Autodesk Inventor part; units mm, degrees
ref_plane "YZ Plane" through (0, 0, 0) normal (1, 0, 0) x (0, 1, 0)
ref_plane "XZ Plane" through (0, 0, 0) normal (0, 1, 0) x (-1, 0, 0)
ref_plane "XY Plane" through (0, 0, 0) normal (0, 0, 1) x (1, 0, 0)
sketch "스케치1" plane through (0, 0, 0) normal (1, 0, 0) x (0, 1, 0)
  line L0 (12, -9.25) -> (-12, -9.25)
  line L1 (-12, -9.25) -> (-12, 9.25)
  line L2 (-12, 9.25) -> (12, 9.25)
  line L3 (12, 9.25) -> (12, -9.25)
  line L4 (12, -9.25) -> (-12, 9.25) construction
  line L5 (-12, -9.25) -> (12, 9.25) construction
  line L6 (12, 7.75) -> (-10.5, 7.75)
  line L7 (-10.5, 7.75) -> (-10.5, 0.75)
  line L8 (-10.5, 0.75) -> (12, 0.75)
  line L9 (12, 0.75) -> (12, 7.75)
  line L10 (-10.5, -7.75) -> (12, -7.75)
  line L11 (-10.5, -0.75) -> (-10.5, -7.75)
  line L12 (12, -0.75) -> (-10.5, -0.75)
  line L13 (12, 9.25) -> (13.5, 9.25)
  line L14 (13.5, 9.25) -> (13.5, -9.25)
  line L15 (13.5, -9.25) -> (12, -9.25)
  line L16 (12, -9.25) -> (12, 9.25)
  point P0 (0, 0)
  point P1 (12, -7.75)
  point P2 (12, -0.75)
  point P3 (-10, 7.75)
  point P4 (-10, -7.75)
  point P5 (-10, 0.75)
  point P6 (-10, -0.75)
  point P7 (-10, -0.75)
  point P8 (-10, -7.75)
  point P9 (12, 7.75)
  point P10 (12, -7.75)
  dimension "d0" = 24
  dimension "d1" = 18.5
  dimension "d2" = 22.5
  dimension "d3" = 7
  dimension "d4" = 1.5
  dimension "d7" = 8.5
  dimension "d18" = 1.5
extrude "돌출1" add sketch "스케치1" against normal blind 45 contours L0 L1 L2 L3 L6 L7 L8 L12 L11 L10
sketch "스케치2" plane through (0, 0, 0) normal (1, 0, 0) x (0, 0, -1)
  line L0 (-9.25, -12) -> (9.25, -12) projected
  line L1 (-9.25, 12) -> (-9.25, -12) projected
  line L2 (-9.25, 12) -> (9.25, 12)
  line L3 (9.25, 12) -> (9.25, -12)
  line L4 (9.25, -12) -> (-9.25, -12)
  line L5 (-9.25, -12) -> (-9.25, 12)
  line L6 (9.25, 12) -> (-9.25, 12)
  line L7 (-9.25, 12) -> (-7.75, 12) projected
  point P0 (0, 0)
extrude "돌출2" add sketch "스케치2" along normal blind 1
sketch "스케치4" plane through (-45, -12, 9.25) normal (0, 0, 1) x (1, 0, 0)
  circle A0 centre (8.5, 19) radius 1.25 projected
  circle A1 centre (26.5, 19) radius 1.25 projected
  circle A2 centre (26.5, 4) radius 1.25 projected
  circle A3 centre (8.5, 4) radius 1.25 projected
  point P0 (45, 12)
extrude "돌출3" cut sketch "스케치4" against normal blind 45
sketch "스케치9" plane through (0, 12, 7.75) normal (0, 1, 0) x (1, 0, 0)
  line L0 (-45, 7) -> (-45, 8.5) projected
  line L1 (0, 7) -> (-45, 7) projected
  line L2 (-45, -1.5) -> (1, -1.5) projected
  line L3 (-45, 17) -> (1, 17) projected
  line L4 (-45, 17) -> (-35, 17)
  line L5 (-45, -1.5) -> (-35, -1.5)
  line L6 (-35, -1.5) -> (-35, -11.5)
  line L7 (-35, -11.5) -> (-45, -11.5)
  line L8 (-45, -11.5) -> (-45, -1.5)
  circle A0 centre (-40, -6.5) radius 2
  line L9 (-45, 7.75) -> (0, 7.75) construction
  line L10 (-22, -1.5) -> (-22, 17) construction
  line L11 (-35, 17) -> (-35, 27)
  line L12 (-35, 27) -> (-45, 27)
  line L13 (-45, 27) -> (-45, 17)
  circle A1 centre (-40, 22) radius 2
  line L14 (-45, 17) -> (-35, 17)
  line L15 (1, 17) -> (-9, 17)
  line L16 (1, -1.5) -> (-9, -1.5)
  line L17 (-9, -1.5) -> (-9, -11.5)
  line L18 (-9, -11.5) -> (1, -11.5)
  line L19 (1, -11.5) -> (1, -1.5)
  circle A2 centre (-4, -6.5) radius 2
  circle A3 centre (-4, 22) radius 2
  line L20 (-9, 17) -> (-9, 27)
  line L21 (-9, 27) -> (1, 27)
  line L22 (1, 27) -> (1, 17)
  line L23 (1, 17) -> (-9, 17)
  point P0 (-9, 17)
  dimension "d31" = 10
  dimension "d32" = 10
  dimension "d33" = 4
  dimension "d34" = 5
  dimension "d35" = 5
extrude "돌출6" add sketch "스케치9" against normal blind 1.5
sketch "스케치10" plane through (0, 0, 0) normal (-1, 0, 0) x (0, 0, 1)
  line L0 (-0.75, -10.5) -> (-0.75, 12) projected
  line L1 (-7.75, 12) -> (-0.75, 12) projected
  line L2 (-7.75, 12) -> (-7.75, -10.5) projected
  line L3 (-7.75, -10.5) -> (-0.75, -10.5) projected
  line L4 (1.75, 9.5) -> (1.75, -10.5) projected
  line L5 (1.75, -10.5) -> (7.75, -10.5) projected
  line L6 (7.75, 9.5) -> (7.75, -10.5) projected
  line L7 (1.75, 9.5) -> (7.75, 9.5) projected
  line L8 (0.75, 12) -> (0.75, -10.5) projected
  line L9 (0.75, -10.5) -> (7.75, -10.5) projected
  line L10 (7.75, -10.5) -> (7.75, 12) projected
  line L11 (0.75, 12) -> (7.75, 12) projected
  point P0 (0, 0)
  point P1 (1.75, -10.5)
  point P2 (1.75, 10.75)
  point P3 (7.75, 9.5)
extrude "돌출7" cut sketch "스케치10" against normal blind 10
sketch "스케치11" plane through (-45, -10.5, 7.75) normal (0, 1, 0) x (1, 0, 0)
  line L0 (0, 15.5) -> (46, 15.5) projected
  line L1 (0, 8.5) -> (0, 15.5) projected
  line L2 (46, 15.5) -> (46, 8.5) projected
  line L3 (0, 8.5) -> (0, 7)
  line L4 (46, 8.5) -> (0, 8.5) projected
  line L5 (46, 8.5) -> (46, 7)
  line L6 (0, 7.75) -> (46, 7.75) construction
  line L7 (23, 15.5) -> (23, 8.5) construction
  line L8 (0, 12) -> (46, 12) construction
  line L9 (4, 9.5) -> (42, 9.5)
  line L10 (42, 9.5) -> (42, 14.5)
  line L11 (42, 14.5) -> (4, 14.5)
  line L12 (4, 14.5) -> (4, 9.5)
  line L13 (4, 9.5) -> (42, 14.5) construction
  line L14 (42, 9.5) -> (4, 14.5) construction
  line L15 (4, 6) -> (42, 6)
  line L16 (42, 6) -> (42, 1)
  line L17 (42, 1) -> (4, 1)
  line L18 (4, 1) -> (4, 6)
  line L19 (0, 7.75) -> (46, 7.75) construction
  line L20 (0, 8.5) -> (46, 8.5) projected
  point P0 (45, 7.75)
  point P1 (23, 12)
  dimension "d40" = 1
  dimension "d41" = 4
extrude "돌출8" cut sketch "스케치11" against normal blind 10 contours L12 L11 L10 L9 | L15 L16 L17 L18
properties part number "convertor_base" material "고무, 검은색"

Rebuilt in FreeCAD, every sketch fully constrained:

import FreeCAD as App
import Part
import Sketcher
Q = App.Units.Quantity

doc = App.newDocument("Part")
body = doc.addObject("PartDesign::Body", "Body")

sketch1 = body.newObject("Sketcher::SketchObject", "Sketch")
sketch1.AttachmentSupport = (doc.getObject("YZ_Plane"), [""])
sketch1.MapMode = "FlatFace"
sketch1.addGeometry([
    Part.LineSegment(App.Vector(-12, -9.2, 0), App.Vector(12, -9.2, 0)),
    Part.LineSegment(App.Vector(12, -9.2, 0), App.Vector(12, -7.8, 0)),
    Part.LineSegment(App.Vector(12, -7.8, 0), App.Vector(-10.5, -7.8, 0)),
    Part.LineSegment(App.Vector(-10.5, -7.8, 0), App.Vector(-10.5, -0.8, 0)),
    Part.LineSegment(App.Vector(-10.5, -0.8, 0), App.Vector(12, -0.8, 0)),
    Part.LineSegment(App.Vector(12, -0.8, 0), App.Vector(12, 0.8, 0)),
    Part.LineSegment(App.Vector(12, 0.8, 0), App.Vector(-10.5, 0.8, 0)),
    Part.LineSegment(App.Vector(-10.5, 0.8, 0), App.Vector(-10.5, 7.8, 0)),
    Part.LineSegment(App.Vector(-10.5, 7.8, 0), App.Vector(12, 7.8, 0)),
    Part.LineSegment(App.Vector(12, 7.8, 0), App.Vector(12, 9.2, 0)),
    Part.LineSegment(App.Vector(12, 9.2, 0), App.Vector(-12, 9.2, 0)),
    Part.LineSegment(App.Vector(-12, 9.2, 0), App.Vector(-12, -9.2, 0)),
], False)
sketch1.addConstraint([
    Sketcher.Constraint("Coincident", 0, 2, 1, 1),
    Sketcher.Constraint("Coincident", 1, 2, 2, 1),
    Sketcher.Constraint("Coincident", 2, 2, 3, 1),
    Sketcher.Constraint("Coincident", 3, 2, 4, 1),
    Sketcher.Constraint("Coincident", 4, 2, 5, 1),
    Sketcher.Constraint("Coincident", 5, 2, 6, 1),
    Sketcher.Constraint("Coincident", 6, 2, 7, 1),
    Sketcher.Constraint("Coincident", 7, 2, 8, 1),
    Sketcher.Constraint("Coincident", 8, 2, 9, 1),
    Sketcher.Constraint("Coincident", 9, 2, 10, 1),
    Sketcher.Constraint("Coincident", 10, 2, 11, 1),
    Sketcher.Constraint("Coincident", 11, 2, 0, 1),
    Sketcher.Constraint("Horizontal", 0),
    Sketcher.Constraint("Vertical", 1),
    Sketcher.Constraint("Horizontal", 2),
    Sketcher.Constraint("Vertical", 3),
    Sketcher.Constraint("Horizontal", 4),
    Sketcher.Constraint("Vertical", 5),
    Sketcher.Constraint("Horizontal", 6),
    Sketcher.Constraint("Vertical", 7),
    Sketcher.Constraint("Horizontal", 8),
    Sketcher.Constraint("Vertical", 9),
    Sketcher.Constraint("Horizontal", 10),
    Sketcher.Constraint("Vertical", 11),
    Sketcher.Constraint("Symmetric", 0, 2, 10, 2, -1, 1),
    Sketcher.Constraint("Symmetric", 3, 2, 6, 2, -1),
    Sketcher.Constraint("Symmetric", 1, 2, 8, 2, -1),
    Sketcher.Constraint("Vertical", 1, 2, 4, 2),
    Sketcher.Constraint("Equal", 1, 5),
    Sketcher.Constraint("DistanceX", 0, 1, 0, 2, Q("24 mm")),
    Sketcher.Constraint("DistanceY", 3, 1, 3, 2, Q("7 mm")),
    Sketcher.Constraint("DistanceX", 2, 2, 2, 1, Q("22.5 mm")),
    Sketcher.Constraint("DistanceY", 1, 1, 1, 2, Q("1.5 mm")),
])
pad1 = body.newObject("PartDesign::Pad", "Pad")
pad1.Profile = sketch1
pad1.Length = 45
pad1.Reversed = True

sketch2 = body.newObject("Sketcher::SketchObject", "Sketch001")
sketch2.AttachmentSupport = (doc.getObject("YZ_Plane"), [""])
sketch2.MapMode = "FlatFace"
sketch2.addGeometry([
    Part.LineSegment(App.Vector(12, 9, 0), App.Vector(-12, 9, 0)),
    Part.LineSegment(App.Vector(-12, 9, 0), App.Vector(-12, -9, 0)),
    Part.LineSegment(App.Vector(-12, -9, 0), App.Vector(12, -9, 0)),
    Part.LineSegment(App.Vector(12, -9, 0), App.Vector(12, 9, 0)),
], False)
sketch2.addConstraint([
    Sketcher.Constraint("Coincident", 0, 2, 1, 1),
    Sketcher.Constraint("Coincident", 1, 2, 2, 1),
    Sketcher.Constraint("Coincident", 2, 2, 3, 1),
    Sketcher.Constraint("Coincident", 3, 2, 0, 1),
    Sketcher.Constraint("Horizontal", 0),
    Sketcher.Constraint("Vertical", 1),
    Sketcher.Constraint("Horizontal", 2),
    Sketcher.Constraint("Vertical", 3),
    Sketcher.Constraint("Symmetric", 0, 2, 2, 2, -1, 1),
    Sketcher.Constraint("DistanceX", 0, 2, 0, 1, Q("24 mm")),
    Sketcher.Constraint("DistanceY", 1, 2, 1, 1, Q("18.5 mm")),
])
pad2 = body.newObject("PartDesign::Pad", "Pad001")
pad2.Profile = sketch2
pad2.Length = 1

sketch3 = body.newObject("Sketcher::SketchObject", "Sketch002")
sketch3.AttachmentSupport = (doc.getObject("XY_Plane"), [""])
sketch3.MapMode = "FlatFace"
sketch3.AttachmentOffset = App.Placement(App.Vector(0, 0, 9.25), App.Rotation())
sketch3.addGeometry([
    Part.Circle(App.Vector(-36.5, 7, 0), App.Vector(0, 0, 1), 1.2),
    Part.Circle(App.Vector(-18.5, 7, 0), App.Vector(0, 0, 1), 1.2),
    Part.Circle(App.Vector(-18.5, -8, 0), App.Vector(0, 0, 1), 1.2),
    Part.Circle(App.Vector(-36.5, -8, 0), App.Vector(0, 0, 1), 1.2),
], False)
sketch3.addConstraint([
    Sketcher.Constraint("Equal", 0, 1),
    Sketcher.Constraint("Equal", 1, 2),
    Sketcher.Constraint("Equal", 2, 3),
    Sketcher.Constraint("Horizontal", 0, 3, 1, 3),
    Sketcher.Constraint("Horizontal", 2, 3, 3, 3),
    Sketcher.Constraint("Vertical", 1, 3, 2, 3),
    Sketcher.Constraint("Vertical", 0, 3, 3, 3),
    Sketcher.Constraint("Diameter", 0, Q("2.5 mm")),
    Sketcher.Constraint("DistanceY", -1, 1, 0, 3, Q("7 mm")),
    Sketcher.Constraint("DistanceY", 2, 3, -1, 1, Q("8 mm")),
    Sketcher.Constraint("DistanceX", 0, 3, 1, 3, Q("18 mm")),
    Sketcher.Constraint("DistanceX", 0, 3, -1, 1, Q("36.5 mm")),
])
pocket1 = body.newObject("PartDesign::Pocket", "Pocket")
pocket1.Profile = sketch3
pocket1.Length = 45

sketch4 = body.newObject("Sketcher::SketchObject", "Sketch003")
sketch4.AttachmentSupport = (doc.getObject("XZ_Plane"), [""])
sketch4.MapMode = "FlatFace"
sketch4.AttachmentOffset = App.Placement(App.Vector(0, 0, -12), App.Rotation())
sketch4.addGeometry([
    Part.LineSegment(App.Vector(1, 9.2, 0), App.Vector(-9, 9.2, 0)),
    Part.LineSegment(App.Vector(-9, 9.2, 0), App.Vector(-9, 19.2, 0)),
    Part.LineSegment(App.Vector(-9, 19.2, 0), App.Vector(1, 19.2, 0)),
    Part.LineSegment(App.Vector(1, 19.2, 0), App.Vector(1, 9.2, 0)),
    Part.Circle(App.Vector(-4, 14.2, 0), App.Vector(0, 0, 1), 2),
    Part.LineSegment(App.Vector(-35, 9.2, 0), App.Vector(-45, 9.2, 0)),
    Part.LineSegment(App.Vector(-45, 9.2, 0), App.Vector(-45, 19.2, 0)),
    Part.LineSegment(App.Vector(-45, 19.2, 0), App.Vector(-35, 19.2, 0)),
    Part.LineSegment(App.Vector(-35, 19.2, 0), App.Vector(-35, 9.2, 0)),
    Part.Circle(App.Vector(-40, 14.2, 0), App.Vector(0, 0, 1), 2),
    Part.LineSegment(App.Vector(-45, -19.2, 0), App.Vector(-45, -9.2, 0)),
    Part.LineSegment(App.Vector(-45, -9.2, 0), App.Vector(-35, -9.2, 0)),
    Part.LineSegment(App.Vector(-35, -9.2, 0), App.Vector(-35, -19.2, 0)),
    Part.LineSegment(App.Vector(-35, -19.2, 0), App.Vector(-45, -19.2, 0)),
    Part.Circle(App.Vector(-40, -14.2, 0), App.Vector(0, 0, 1), 2),
    Part.LineSegment(App.Vector(-9, -19.2, 0), App.Vector(-9, -9.2, 0)),
    Part.LineSegment(App.Vector(-9, -9.2, 0), App.Vector(1, -9.2, 0)),
    Part.LineSegment(App.Vector(1, -9.2, 0), App.Vector(1, -19.2, 0)),
    Part.LineSegment(App.Vector(1, -19.2, 0), App.Vector(-9, -19.2, 0)),
    Part.Circle(App.Vector(-4, -14.2, 0), App.Vector(0, 0, 1), 2),
], False)
sketch4.addConstraint([
    Sketcher.Constraint("Coincident", 0, 2, 1, 1),
    Sketcher.Constraint("Coincident", 1, 2, 2, 1),
    Sketcher.Constraint("Coincident", 2, 2, 3, 1),
    Sketcher.Constraint("Coincident", 3, 2, 0, 1),
    Sketcher.Constraint("Coincident", 5, 2, 6, 1),
    Sketcher.Constraint("Coincident", 6, 2, 7, 1),
    Sketcher.Constraint("Coincident", 7, 2, 8, 1),
    Sketcher.Constraint("Coincident", 8, 2, 5, 1),
    Sketcher.Constraint("Coincident", 10, 2, 11, 1),
    Sketcher.Constraint("Coincident", 11, 2, 12, 1),
    Sketcher.Constraint("Coincident", 12, 2, 13, 1),
    Sketcher.Constraint("Coincident", 13, 2, 10, 1),
    Sketcher.Constraint("Coincident", 15, 2, 16, 1),
    Sketcher.Constraint("Coincident", 16, 2, 17, 1),
    Sketcher.Constraint("Coincident", 17, 2, 18, 1),
    Sketcher.Constraint("Coincident", 18, 2, 15, 1),
    Sketcher.Constraint("Horizontal", 0),
    Sketcher.Constraint("Vertical", 1),
    Sketcher.Constraint("Horizontal", 2),
    Sketcher.Constraint("Vertical", 3),
    Sketcher.Constraint("Horizontal", 5),
    Sketcher.Constraint("Vertical", 6),
    Sketcher.Constraint("Horizontal", 7),
    Sketcher.Constraint("Vertical", 8),
    Sketcher.Constraint("Vertical", 10),
    Sketcher.Constraint("Horizontal", 11),
    Sketcher.Constraint("Vertical", 12),
    Sketcher.Constraint("Horizontal", 13),
    Sketcher.Constraint("Vertical", 15),
    Sketcher.Constraint("Horizontal", 16),
    Sketcher.Constraint("Vertical", 17),
    Sketcher.Constraint("Horizontal", 18),
    Sketcher.Constraint("Equal", 4, 9),
    Sketcher.Constraint("Equal", 9, 14),
    Sketcher.Constraint("Equal", 14, 19),
    Sketcher.Constraint("Symmetric", 9, 3, 14, 3, -1),
    Sketcher.Constraint("Symmetric", 4, 3, 19, 3, -1),
    Sketcher.Constraint("Symmetric", 5, 2, 10, 2, -1),
    Sketcher.Constraint("Symmetric", 7, 2, 12, 2, -1),
    Sketcher.Constraint("Symmetric", 0, 2, 15, 2, -1),
    Sketcher.Constraint("Symmetric", 2, 2, 17, 2, -1),
    Sketcher.Constraint("Horizontal", 4, 3, 9, 3),
    Sketcher.Constraint("Horizontal", 3, 2, 5, 2),
    Sketcher.Constraint("Horizontal", 2, 2, 6, 2),
    Sketcher.Constraint("Equal", 2, 5),
    Sketcher.Constraint("Equal", 18, 1),
    Sketcher.Constraint("Diameter", 4, Q("4 mm")),
    Sketcher.Constraint("DistanceX", 0, 2, 0, 1, Q("10 mm")),
    Sketcher.Constraint("DistanceX", 4, 3, -1, 1, Q("4 mm")),
    Sketcher.Constraint("DistanceX", 0, 2, 4, 3, Q("5 mm")),
    Sketcher.Constraint("DistanceY", 0, 2, 4, 3, Q("5 mm")),
    Sketcher.Constraint("DistanceX", 5, 2, 9, 3, Q("5 mm")),
    Sketcher.Constraint("DistanceX", 9, 3, -1, 1, Q("40 mm")),
    Sketcher.Constraint("DistanceY", 14, 3, 9, 3, Q("28.5 mm")),
])
pad3 = body.newObject("PartDesign::Pad", "Pad002")
pad3.Profile = sketch4
pad3.Length = 1.5

sketch5 = body.newObject("Sketcher::SketchObject", "Sketch004")
sketch5.AttachmentSupport = (doc.getObject("YZ_Plane"), [""])
sketch5.MapMode = "FlatFace"
sketch5.addGeometry([
    Part.LineSegment(App.Vector(-10, -8, 0), App.Vector(-10, -1, 0)),
    Part.LineSegment(App.Vector(-10, -1, 0), App.Vector(12, -1, 0)),
    Part.LineSegment(App.Vector(12, -1, 0), App.Vector(12, -8, 0)),
    Part.LineSegment(App.Vector(12, -8, 0), App.Vector(-10, -8, 0)),
    Part.LineSegment(App.Vector(-10, 8, 0), App.Vector(12, 8, 0)),
    Part.LineSegment(App.Vector(12, 8, 0), App.Vector(12, 1, 0)),
    Part.LineSegment(App.Vector(12, 1, 0), App.Vector(-10, 1, 0)),
    Part.LineSegment(App.Vector(-10, 1, 0), App.Vector(-10, 8, 0)),
], False)
sketch5.addConstraint([
    Sketcher.Constraint("Coincident", 0, 2, 1, 1),
    Sketcher.Constraint("Coincident", 1, 2, 2, 1),
    Sketcher.Constraint("Coincident", 2, 2, 3, 1),
    Sketcher.Constraint("Coincident", 3, 2, 0, 1),
    Sketcher.Constraint("Coincident", 4, 2, 5, 1),
    Sketcher.Constraint("Coincident", 5, 2, 6, 1),
    Sketcher.Constraint("Coincident", 6, 2, 7, 1),
    Sketcher.Constraint("Coincident", 7, 2, 4, 1),
    Sketcher.Constraint("Vertical", 0),
    Sketcher.Constraint("Horizontal", 1),
    Sketcher.Constraint("Vertical", 2),
    Sketcher.Constraint("Horizontal", 3),
    Sketcher.Constraint("Horizontal", 4),
    Sketcher.Constraint("Vertical", 5),
    Sketcher.Constraint("Horizontal", 6),
    Sketcher.Constraint("Vertical", 7),
    Sketcher.Constraint("Symmetric", 2, 2, 4, 2, -1),
    Sketcher.Constraint("Symmetric", 0, 2, 6, 2, -1),
    Sketcher.Constraint("DistanceY", 0, 1, 0, 2, Q("7 mm")),
    Sketcher.Constraint("DistanceX", 1, 1, 1, 2, Q("22.5 mm")),
    Sketcher.Constraint("DistanceX", -1, 1, 1, 2, Q("12 mm")),
    Sketcher.Constraint("DistanceY", 1, 2, 4, 2, Q("8.5 mm")),
])
pocket2 = body.newObject("PartDesign::Pocket", "Pocket001")
pocket2.Profile = sketch5
pocket2.Length = 10
pocket2.Reversed = True

sketch6 = body.newObject("Sketcher::SketchObject", "Sketch005")
sketch6.AttachmentSupport = (doc.getObject("XZ_Plane"), [""])
sketch6.MapMode = "FlatFace"
sketch6.AttachmentOffset = App.Placement(App.Vector(0, 0, 10.5), App.Rotation())
sketch6.addGeometry([
    Part.LineSegment(App.Vector(-41, -7, 0), App.Vector(-41, -2, 0)),
    Part.LineSegment(App.Vector(-41, -2, 0), App.Vector(-3, -2, 0)),
    Part.LineSegment(App.Vector(-3, -2, 0), App.Vector(-3, -7, 0)),
    Part.LineSegment(App.Vector(-3, -7, 0), App.Vector(-41, -7, 0)),
    Part.LineSegment(App.Vector(-3, 2, 0), App.Vector(-41, 2, 0)),
    Part.LineSegment(App.Vector(-41, 2, 0), App.Vector(-41, 7, 0)),
    Part.LineSegment(App.Vector(-41, 7, 0), App.Vector(-3, 7, 0)),
    Part.LineSegment(App.Vector(-3, 7, 0), App.Vector(-3, 2, 0)),
], False)
sketch6.addConstraint([
    Sketcher.Constraint("Coincident", 0, 2, 1, 1),
    Sketcher.Constraint("Coincident", 1, 2, 2, 1),
    Sketcher.Constraint("Coincident", 2, 2, 3, 1),
    Sketcher.Constraint("Coincident", 3, 2, 0, 1),
    Sketcher.Constraint("Coincident", 4, 2, 5, 1),
    Sketcher.Constraint("Coincident", 5, 2, 6, 1),
    Sketcher.Constraint("Coincident", 6, 2, 7, 1),
    Sketcher.Constraint("Coincident", 7, 2, 4, 1),
    Sketcher.Constraint("Vertical", 0),
    Sketcher.Constraint("Horizontal", 1),
    Sketcher.Constraint("Vertical", 2),
    Sketcher.Constraint("Horizontal", 3),
    Sketcher.Constraint("Horizontal", 4),
    Sketcher.Constraint("Vertical", 5),
    Sketcher.Constraint("Horizontal", 6),
    Sketcher.Constraint("Vertical", 7),
    Sketcher.Constraint("Symmetric", 0, 2, 4, 2, -1),
    Sketcher.Constraint("Symmetric", 2, 2, 6, 2, -1),
    Sketcher.Constraint("DistanceX", 1, 1, 1, 2, Q("38 mm")),
    Sketcher.Constraint("DistanceY", 0, 1, 0, 2, Q("5 mm")),
    Sketcher.Constraint("DistanceX", 0, 2, -1, 1, Q("41 mm")),
    Sketcher.Constraint("DistanceY", 0, 2, 4, 2, Q("3.5 mm")),
])
pocket3 = body.newObject("PartDesign::Pocket", "Pocket002")
pocket3.Profile = sketch6
pocket3.Length = 10
pocket3.Reversed = True

doc.recompute()
